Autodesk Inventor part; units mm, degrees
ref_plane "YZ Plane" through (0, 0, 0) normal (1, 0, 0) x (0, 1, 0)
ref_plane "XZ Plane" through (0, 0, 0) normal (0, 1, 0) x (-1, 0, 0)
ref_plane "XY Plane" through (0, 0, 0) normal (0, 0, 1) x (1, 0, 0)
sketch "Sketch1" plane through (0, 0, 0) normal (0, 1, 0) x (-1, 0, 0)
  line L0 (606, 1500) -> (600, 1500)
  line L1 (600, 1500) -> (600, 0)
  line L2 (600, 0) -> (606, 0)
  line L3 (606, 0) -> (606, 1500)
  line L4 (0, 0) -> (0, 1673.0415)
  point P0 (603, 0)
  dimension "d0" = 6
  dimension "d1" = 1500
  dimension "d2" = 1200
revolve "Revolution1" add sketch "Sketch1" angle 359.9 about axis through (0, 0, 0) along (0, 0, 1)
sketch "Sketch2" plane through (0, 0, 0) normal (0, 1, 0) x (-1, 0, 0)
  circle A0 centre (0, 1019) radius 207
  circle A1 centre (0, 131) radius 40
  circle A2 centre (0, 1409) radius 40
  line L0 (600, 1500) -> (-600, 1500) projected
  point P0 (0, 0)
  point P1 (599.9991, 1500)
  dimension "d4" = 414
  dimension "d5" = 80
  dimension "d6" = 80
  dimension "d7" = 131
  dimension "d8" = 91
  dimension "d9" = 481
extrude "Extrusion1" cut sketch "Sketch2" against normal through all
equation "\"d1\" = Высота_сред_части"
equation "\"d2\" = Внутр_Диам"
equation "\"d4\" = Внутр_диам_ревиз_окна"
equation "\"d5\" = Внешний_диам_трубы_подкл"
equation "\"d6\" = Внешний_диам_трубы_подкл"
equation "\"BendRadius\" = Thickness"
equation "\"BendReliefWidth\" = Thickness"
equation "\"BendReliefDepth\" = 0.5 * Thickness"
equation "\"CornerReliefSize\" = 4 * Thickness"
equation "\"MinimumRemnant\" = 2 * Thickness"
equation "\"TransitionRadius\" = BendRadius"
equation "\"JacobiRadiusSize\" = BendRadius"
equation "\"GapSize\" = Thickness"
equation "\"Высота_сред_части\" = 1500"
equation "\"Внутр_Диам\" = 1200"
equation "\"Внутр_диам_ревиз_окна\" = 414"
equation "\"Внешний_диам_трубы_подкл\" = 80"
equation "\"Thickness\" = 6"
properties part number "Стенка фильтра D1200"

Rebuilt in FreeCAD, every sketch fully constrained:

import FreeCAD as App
import Part
import Sketcher
from FreeCAD import Vector
Q = App.Units.Quantity


def add_polygon(sketch, points):
    """Adds a closed chain of lines whose ends are joined by coincident constraints."""
    first, n = sketch.GeometryCount, len(points)
    for a, b in zip(points, points[1:] + points[:1]):
        sketch.addGeometry(Part.LineSegment(App.Vector(*a, 0), App.Vector(*b, 0)), False)
    for i in range(n):
        sketch.addConstraint(Sketcher.Constraint("Coincident", first + i, 2, first + (i + 1) % n, 1))

doc = App.newDocument("Part")
params = doc.addObject("Spreadsheet::Sheet", "Params")
for row, (alias, value) in enumerate([
    ("sketch1_width", "6 mm"),
    ("sketch1_height", "1500 mm"),
    ("revolution_angle", "359.9 deg"),
    ("sketch2_diameter", "414 mm"),
    ("sketch2_diameter2", "80 mm"),
], start=1):
    params.set(f"A{row}", alias)
    params.set(f"B{row}", "=" + value)
    params.setAlias(f"B{row}", alias)

body = doc.addObject("PartDesign::Body", "Body")

sketch1 = body.newObject("Sketcher::SketchObject", "Sketch")
sketch1.AttachmentSupport = (doc.getObject("XZ_Plane"), [""])
sketch1.MapMode = "FlatFace"
add_polygon(sketch1, [(-606, 0), (-606, 1500), (-600, 1500), (-600, 0)])
sketch1.addConstraint([
    Sketcher.Constraint("Vertical", 0),
    Sketcher.Constraint("Horizontal", 1),
    Sketcher.Constraint("Vertical", 2),
    Sketcher.Constraint("Horizontal", 3),
    Sketcher.Constraint("PointOnObject", 2, 2, -1),
    Sketcher.Constraint("DistanceX", 1, 1, 1, 2, Q("6 mm")),
    Sketcher.Constraint("DistanceY", 0, 1, 0, 2, Q("1500 mm")),
    Sketcher.Constraint("DistanceX", 0, 2, -1, 1, Q("606 mm")),
])
sketch1.setExpression("Constraints[9]", "Params.sketch1_width")
sketch1.setExpression("Constraints[10]", "Params.sketch1_height")
revolution = body.newObject("PartDesign::Revolution", "Revolution")
revolution.Profile = sketch1
revolution.ReferenceAxis = (sketch1, ["V_Axis"])
revolution.setExpression("Angle", "Params.revolution_angle")

sketch2 = body.newObject("Sketcher::SketchObject", "Sketch001")
sketch2.AttachmentSupport = (doc.getObject("XZ_Plane"), [""])
sketch2.MapMode = "FlatFace"
sketch2.addGeometry([
    Part.Circle(Vector(0, 1019, 0), Vector(0, 0, 1), 207),
    Part.Circle(Vector(0, 131, 0), Vector(0, 0, 1), 40),
    Part.Circle(Vector(0, 1409, 0), Vector(0, 0, 1), 40),
], False)
sketch2.addConstraint([
    Sketcher.Constraint("Equal", 1, 2),
    Sketcher.Constraint("PointOnObject", 0, 3, -2),
    Sketcher.Constraint("PointOnObject", 1, 3, -2),
    Sketcher.Constraint("PointOnObject", 2, 3, -2),
    Sketcher.Constraint("Diameter", 0, Q("414 mm")),
    Sketcher.Constraint("Diameter", 1, Q("80 mm")),
    Sketcher.Constraint("DistanceY", -1, 1, 1, 3, Q("131 mm")),
    Sketcher.Constraint("DistanceY", -1, 1, 0, 3, Q("1019 mm")),
    Sketcher.Constraint("DistanceY", -1, 1, 2, 3, Q("1409 mm")),
])
sketch2.setExpression("Constraints[4]", "Params.sketch2_diameter")
sketch2.setExpression("Constraints[5]", "Params.sketch2_diameter2")
pocket1 = body.newObject("PartDesign::Pocket", "Pocket")
pocket1.Profile = sketch2
pocket1.Type = "ThroughAll"
pocket1.Reversed = True

doc.recompute()
